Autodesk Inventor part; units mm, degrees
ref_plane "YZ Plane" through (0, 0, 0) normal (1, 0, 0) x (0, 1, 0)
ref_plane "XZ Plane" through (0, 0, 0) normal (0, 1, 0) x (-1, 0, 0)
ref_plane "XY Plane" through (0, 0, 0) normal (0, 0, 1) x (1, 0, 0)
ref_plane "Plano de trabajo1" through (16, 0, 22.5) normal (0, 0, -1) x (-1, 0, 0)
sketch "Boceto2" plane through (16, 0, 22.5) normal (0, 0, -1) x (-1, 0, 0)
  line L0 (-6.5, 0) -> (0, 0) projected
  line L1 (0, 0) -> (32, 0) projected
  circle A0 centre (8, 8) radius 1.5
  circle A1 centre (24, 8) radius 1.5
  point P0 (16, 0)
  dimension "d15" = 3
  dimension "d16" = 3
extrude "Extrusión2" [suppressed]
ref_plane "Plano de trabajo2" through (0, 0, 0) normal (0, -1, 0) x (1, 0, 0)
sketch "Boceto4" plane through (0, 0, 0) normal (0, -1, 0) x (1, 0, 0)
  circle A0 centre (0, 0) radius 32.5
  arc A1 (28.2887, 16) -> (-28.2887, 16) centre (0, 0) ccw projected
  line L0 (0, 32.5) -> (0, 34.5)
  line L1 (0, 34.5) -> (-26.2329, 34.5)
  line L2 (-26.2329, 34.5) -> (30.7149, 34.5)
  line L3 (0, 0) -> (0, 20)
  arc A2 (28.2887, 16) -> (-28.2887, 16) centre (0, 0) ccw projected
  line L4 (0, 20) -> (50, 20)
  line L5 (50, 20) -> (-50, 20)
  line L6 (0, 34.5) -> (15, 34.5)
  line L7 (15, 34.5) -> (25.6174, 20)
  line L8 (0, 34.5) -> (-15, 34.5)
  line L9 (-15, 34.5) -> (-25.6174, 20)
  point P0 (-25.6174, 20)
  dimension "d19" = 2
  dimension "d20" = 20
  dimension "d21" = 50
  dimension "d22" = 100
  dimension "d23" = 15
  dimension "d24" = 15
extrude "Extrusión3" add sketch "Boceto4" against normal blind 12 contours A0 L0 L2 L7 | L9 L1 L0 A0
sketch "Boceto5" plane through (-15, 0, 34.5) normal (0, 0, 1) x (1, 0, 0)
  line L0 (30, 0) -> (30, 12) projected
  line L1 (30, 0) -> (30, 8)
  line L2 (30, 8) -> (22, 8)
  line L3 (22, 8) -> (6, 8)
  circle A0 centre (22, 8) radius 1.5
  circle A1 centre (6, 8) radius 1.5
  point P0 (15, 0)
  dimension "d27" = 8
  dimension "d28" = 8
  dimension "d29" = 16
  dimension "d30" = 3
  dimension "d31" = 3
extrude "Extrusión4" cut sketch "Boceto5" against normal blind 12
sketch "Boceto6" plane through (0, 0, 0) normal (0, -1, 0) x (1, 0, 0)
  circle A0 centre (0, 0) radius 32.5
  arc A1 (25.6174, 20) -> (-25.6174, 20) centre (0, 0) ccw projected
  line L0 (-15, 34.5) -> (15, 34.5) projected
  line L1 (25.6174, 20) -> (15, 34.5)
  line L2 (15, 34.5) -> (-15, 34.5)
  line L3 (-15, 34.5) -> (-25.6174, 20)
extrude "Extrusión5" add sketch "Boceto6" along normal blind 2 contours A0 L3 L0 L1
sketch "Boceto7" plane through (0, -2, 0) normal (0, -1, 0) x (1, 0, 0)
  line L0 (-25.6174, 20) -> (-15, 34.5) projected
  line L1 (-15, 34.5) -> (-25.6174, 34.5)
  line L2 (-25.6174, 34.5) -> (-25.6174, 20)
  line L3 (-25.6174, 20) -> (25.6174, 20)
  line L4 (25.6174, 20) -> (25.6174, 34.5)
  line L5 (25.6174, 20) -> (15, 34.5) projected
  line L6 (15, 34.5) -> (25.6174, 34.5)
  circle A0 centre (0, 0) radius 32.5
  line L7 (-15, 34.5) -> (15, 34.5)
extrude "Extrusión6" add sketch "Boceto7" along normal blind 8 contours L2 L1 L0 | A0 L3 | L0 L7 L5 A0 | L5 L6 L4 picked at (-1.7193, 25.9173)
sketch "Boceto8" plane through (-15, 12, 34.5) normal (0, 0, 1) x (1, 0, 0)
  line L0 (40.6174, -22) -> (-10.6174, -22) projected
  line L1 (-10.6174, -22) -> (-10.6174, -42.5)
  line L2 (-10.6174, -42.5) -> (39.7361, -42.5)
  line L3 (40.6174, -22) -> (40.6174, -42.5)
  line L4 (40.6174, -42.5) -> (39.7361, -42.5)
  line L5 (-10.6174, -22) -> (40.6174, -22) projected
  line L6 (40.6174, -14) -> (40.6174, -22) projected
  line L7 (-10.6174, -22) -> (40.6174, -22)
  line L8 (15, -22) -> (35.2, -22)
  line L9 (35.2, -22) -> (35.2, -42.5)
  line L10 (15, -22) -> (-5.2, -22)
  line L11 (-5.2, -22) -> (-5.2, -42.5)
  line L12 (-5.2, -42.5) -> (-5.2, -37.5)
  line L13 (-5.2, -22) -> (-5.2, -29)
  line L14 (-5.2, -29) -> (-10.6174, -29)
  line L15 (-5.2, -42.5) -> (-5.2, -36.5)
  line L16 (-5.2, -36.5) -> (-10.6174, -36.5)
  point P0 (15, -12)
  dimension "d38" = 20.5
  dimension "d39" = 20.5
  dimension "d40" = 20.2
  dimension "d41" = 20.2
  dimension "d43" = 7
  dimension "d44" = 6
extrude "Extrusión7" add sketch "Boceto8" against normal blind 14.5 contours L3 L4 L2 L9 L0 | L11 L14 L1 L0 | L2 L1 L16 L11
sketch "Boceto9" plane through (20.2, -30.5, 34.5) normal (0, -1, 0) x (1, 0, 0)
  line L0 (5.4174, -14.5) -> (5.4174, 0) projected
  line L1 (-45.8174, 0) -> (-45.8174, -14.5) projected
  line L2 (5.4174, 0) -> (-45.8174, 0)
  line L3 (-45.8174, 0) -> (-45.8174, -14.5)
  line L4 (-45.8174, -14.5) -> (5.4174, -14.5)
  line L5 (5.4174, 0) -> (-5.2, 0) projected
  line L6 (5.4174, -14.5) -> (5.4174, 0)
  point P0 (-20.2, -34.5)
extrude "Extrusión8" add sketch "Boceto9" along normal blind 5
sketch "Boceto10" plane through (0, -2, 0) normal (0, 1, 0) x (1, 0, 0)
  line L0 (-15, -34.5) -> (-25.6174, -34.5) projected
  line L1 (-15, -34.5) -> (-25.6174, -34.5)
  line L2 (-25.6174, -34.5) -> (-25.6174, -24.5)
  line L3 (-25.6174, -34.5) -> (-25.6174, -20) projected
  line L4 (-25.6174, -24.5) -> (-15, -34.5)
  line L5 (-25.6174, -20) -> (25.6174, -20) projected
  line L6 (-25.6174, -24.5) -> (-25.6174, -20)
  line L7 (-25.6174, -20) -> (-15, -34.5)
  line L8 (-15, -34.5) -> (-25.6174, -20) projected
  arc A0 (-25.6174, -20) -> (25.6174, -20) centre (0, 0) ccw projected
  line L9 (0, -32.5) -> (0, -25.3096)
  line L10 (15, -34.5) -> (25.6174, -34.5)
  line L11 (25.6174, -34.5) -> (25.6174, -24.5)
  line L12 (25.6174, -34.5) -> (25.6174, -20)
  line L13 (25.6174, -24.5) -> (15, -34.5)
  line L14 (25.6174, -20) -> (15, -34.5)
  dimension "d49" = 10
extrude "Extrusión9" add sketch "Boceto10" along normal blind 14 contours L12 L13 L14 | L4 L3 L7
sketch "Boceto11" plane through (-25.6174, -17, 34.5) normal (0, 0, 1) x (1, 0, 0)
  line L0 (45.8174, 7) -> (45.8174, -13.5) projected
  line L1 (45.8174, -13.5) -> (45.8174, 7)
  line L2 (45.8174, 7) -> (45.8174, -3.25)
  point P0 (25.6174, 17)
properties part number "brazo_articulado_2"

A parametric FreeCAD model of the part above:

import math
import FreeCAD as App
import Part
import Sketcher


def add_polygon(sketch, points):
    """Adds a closed chain of lines whose ends are joined by coincident constraints."""
    first, n = sketch.GeometryCount, len(points)
    for a, b in zip(points, points[1:] + points[:1]):
        sketch.addGeometry(Part.LineSegment(App.Vector(*a, 0), App.Vector(*b, 0)), False)
    for i in range(n):
        sketch.addConstraint(Sketcher.Constraint("Coincident", first + i, 2, first + (i + 1) % n, 1))

doc = App.newDocument("Part")
body = doc.addObject("PartDesign::Body", "Body")
body.AllowCompound = True

# Sketch on XZ plane
sketch1 = doc.addObject("Sketcher::SketchObject", "Sketch")
body.addObject(sketch1)
sketch1.AttachmentSupport = (doc.XZ_Plane, [""])
sketch1.MapMode = "FlatFace"
sketch1.addGeometry([
    Part.LineSegment(App.Vector(26, 20, 0), App.Vector(15, 34, 0)),
    Part.LineSegment(App.Vector(15, 34, 0), App.Vector(-15, 34, 0)),
    Part.LineSegment(App.Vector(-15, 34, 0), App.Vector(-26, 20, 0)),
    Part.ArcOfCircle(Part.Circle(App.Vector(0, 0, 0), App.Vector(0, 0, 1), 32), math.radians(38), math.radians(142)),
], False)
sketch1.addConstraint([
    Sketcher.Constraint("Coincident", 0, 2, 1, 1),
    Sketcher.Constraint("Coincident", 1, 2, 2, 1),
    Sketcher.Constraint("Coincident", 2, 2, 3, 2),
    Sketcher.Constraint("Coincident", 3, 1, 0, 1),
    Sketcher.Constraint("Horizontal", 1),
    Sketcher.Constraint("Coincident", 3, 3, -1, 1),
    Sketcher.Constraint("Horizontal", 2, 2, 3, 1),
    Sketcher.Constraint("Equal", 0, 2),
    Sketcher.Constraint("DistanceX", -1, 1, 0, 2, 15.0),
    Sketcher.Constraint("DistanceY", -1, 1, 2, 2, 20.0),
    Sketcher.Constraint("Radius", 3, 32.5),
    Sketcher.Constraint("DistanceY", -1, 1, 0, 2, 34.5),
])
pad1 = doc.addObject("PartDesign::Pad", "Pad")
body.addObject(pad1)
pad1.Profile = sketch1
pad1.Length = 12
pad1.Reversed = True

# Sketch on XY plane
sketch2 = doc.addObject("Sketcher::SketchObject", "Sketch001")
body.addObject(sketch2)
sketch2.AttachmentSupport = (doc.XY_Plane, [""])
sketch2.MapMode = "FlatFace"
sketch2.AttachmentOffset = App.Placement(App.Vector(0, 0, 34.5), App.Rotation())
sketch2.addGeometry([
    Part.Circle(App.Vector(7, 8, 0), App.Vector(0, 0, 1), 1.5),
    Part.Circle(App.Vector(-9, 8, 0), App.Vector(0, 0, 1), 1.5),
], False)
sketch2.addConstraint([
    Sketcher.Constraint("Equal", 0, 1),
    Sketcher.Constraint("Horizontal", 0, 3, 1, 3),
    Sketcher.Constraint("Diameter", 0, 3.0),
    Sketcher.Constraint("DistanceY", -1, 1, 0, 3, 8.0),
    Sketcher.Constraint("DistanceX", 1, 3, 0, 3, 16.0),
    Sketcher.Constraint("DistanceX", -1, 1, 0, 3, 7.0),
])
pocket1 = doc.addObject("PartDesign::Pocket", "Pocket")
body.addObject(pocket1)
pocket1.Profile = sketch2
pocket1.Length = 12

# Sketch on XZ plane
sketch3 = doc.addObject("Sketcher::SketchObject", "Sketch002")
body.addObject(sketch3)
sketch3.AttachmentSupport = (doc.XZ_Plane, [""])
sketch3.MapMode = "FlatFace"
sketch3.addGeometry([
    Part.ArcOfCircle(Part.Circle(App.Vector(0, 0, 0), App.Vector(0, 0, 1), 32), math.radians(38), math.radians(142)),
    Part.LineSegment(App.Vector(26, 20, 0), App.Vector(15, 34, 0)),
    Part.LineSegment(App.Vector(15, 34, 0), App.Vector(-15, 34, 0)),
    Part.LineSegment(App.Vector(-15, 34, 0), App.Vector(-26, 20, 0)),
], False)
sketch3.addConstraint([
    Sketcher.Constraint("Coincident", 0, 1, 1, 1),
    Sketcher.Constraint("Coincident", 1, 2, 2, 1),
    Sketcher.Constraint("Coincident", 2, 2, 3, 1),
    Sketcher.Constraint("Coincident", 3, 2, 0, 2),
    Sketcher.Constraint("Horizontal", 2),
    Sketcher.Constraint("Coincident", 0, 3, -1, 1),
    Sketcher.Constraint("Horizontal", 0, 1, 3, 2),
    Sketcher.Constraint("Equal", 1, 3),
    Sketcher.Constraint("Radius", 0, 32.5),
    Sketcher.Constraint("DistanceX", 2, 2, 2, 1, 30.0),
    Sketcher.Constraint("DistanceY", -1, 1, 0, 1, 20.0),
    Sketcher.Constraint("DistanceY", -1, 1, 1, 2, 34.5),
])
pad2 = doc.addObject("PartDesign::Pad", "Pad001")
body.addObject(pad2)
pad2.Profile = sketch3
pad2.Length = 2

# Sketch on XZ plane
sketch4 = doc.addObject("Sketcher::SketchObject", "Sketch003")
body.addObject(sketch4)
sketch4.AttachmentSupport = (doc.XZ_Plane, [""])
sketch4.MapMode = "FlatFace"
sketch4.AttachmentOffset = App.Placement(App.Vector(0, 0, 2), App.Rotation())
add_polygon(sketch4, [(-26, 34), (-26, 20), (26, 20), (26, 34)])  # lines 0-3
sketch4.addConstraint([
    Sketcher.Constraint("Vertical", 0),
    Sketcher.Constraint("Horizontal", 1),
    Sketcher.Constraint("Vertical", 2),
    Sketcher.Constraint("Horizontal", 3),
    Sketcher.Constraint("DistanceY", 0, 2, 0, 1, 14.5),
    Sketcher.Constraint("DistanceY", -1, 1, 0, 2, 20.0),
    Sketcher.Constraint("DistanceX", 1, 1, 1, 2, 51.2348),
    Sketcher.Constraint("DistanceX", 0, 2, -1, 1, 25.6174),
])
pad3 = doc.addObject("PartDesign::Pad", "Pad002")
body.addObject(pad3)
pad3.Profile = sketch4
pad3.Length = 8

# Sketch on XY plane
sketch5 = doc.addObject("Sketcher::SketchObject", "Sketch004")
body.addObject(sketch5)
sketch5.AttachmentSupport = (doc.XY_Plane, [""])
sketch5.MapMode = "FlatFace"
sketch5.AttachmentOffset = App.Placement(App.Vector(0, 0, 34.5), App.Rotation())
add_polygon(sketch5, [(26, -30), (26, -10), (20, -10), (20, -30)])  # lines 0-3
add_polygon(sketch5, [(-20, -17), (-20, -10), (-26, -10), (-26, -17)])  # lines 4-7
add_polygon(sketch5, [(-26, -30), (-20, -30), (-20, -24), (-26, -24)])  # lines 8-11
sketch5.addConstraint([
    Sketcher.Constraint("Vertical", 0),
    Sketcher.Constraint("Horizontal", 1),
    Sketcher.Constraint("Vertical", 2),
    Sketcher.Constraint("Horizontal", 3),
    Sketcher.Constraint("Vertical", 4),
    Sketcher.Constraint("Horizontal", 5),
    Sketcher.Constraint("Vertical", 6),
    Sketcher.Constraint("Horizontal", 7),
    Sketcher.Constraint("Horizontal", 8),
    Sketcher.Constraint("Vertical", 9),
    Sketcher.Constraint("Horizontal", 10),
    Sketcher.Constraint("Vertical", 11),
    Sketcher.Constraint("Symmetric", 1, 2, 4, 2, -2),
    Sketcher.Constraint("Symmetric", 2, 2, 8, 2, -2),
    Sketcher.Constraint("Vertical", 6, 2, 10, 2),
    Sketcher.Constraint("Equal", 3, 5),
    Sketcher.Constraint("DistanceY", 4, 1, 4, 2, 7.0),
    Sketcher.Constraint("DistanceY", 9, 1, 9, 2, 6.0),
    Sketcher.Constraint("DistanceY", 0, 1, 0, 2, 20.5),
    Sketcher.Constraint("DistanceX", -1, 1, 1, 2, 20.2),
    Sketcher.Constraint("DistanceY", 0, 2, -1, 1, 10.0),
    Sketcher.Constraint("DistanceX", 1, 2, 1, 1, 5.4174),
])
pad4 = doc.addObject("PartDesign::Pad", "Pad003")
body.addObject(pad4)
pad4.Profile = sketch5
pad4.Length = 14.5
pad4.Reversed = True

# Sketch on XZ plane
sketch6 = doc.addObject("Sketcher::SketchObject", "Sketch005")
body.addObject(sketch6)
sketch6.AttachmentSupport = (doc.XZ_Plane, [""])
sketch6.MapMode = "FlatFace"
sketch6.AttachmentOffset = App.Placement(App.Vector(0, 0, 30.5), App.Rotation())
add_polygon(sketch6, [(-26, 20), (26, 20), (26, 34), (-26, 34)])  # lines 0-3
sketch6.addConstraint([
    Sketcher.Constraint("Horizontal", 0),
    Sketcher.Constraint("Vertical", 1),
    Sketcher.Constraint("Horizontal", 2),
    Sketcher.Constraint("Vertical", 3),
    Sketcher.Constraint("DistanceY", 1, 1, 1, 2, 14.5),
    Sketcher.Constraint("DistanceY", -1, 1, 0, 2, 20.0),
    Sketcher.Constraint("DistanceX", 0, 1, 0, 2, 51.2348),
    Sketcher.Constraint("DistanceX", -1, 1, 0, 2, 25.6174),
])
pad5 = doc.addObject("PartDesign::Pad", "Pad004")
body.addObject(pad5)
pad5.Profile = sketch6
pad5.Length = 5

# Sketch on XZ plane
sketch7 = doc.addObject("Sketcher::SketchObject", "Sketch006")
body.addObject(sketch7)
sketch7.AttachmentSupport = (doc.XZ_Plane, [""])
sketch7.MapMode = "FlatFace"
sketch7.AttachmentOffset = App.Placement(App.Vector(0, 0, 2), App.Rotation())
add_polygon(sketch7, [(25.6, 24.5), (25.6, 20), (15, 34.5)])  # lines 0-2
add_polygon(sketch7, [(-25.6, 24.5), (-15, 34.5), (-25.6, 20)])  # lines 3-5
sketch7.addConstraint([
    Sketcher.Constraint("Vertical", 0),
    Sketcher.Constraint("Vertical", 5),
    Sketcher.Constraint("Symmetric", 1, 2, 3, 2, -2),
    Sketcher.Constraint("Symmetric", 0, 2, 4, 2, -2),
    Sketcher.Constraint("Horizontal", 2, 2, 5, 2),
    Sketcher.Constraint("DistanceY", 2, 2, 1, 2, 10.0),
    Sketcher.Constraint("DistanceY", 0, 2, 0, 1, 4.5),
    Sketcher.Constraint("DistanceY", -1, 1, 0, 2, 20.0),
    Sketcher.Constraint("DistanceX", -1, 1, 1, 2, 15.0),
    Sketcher.Constraint("Distance", 1, 17.9716),
])
pad6 = doc.addObject("PartDesign::Pad", "Pad005")
body.addObject(pad6)
pad6.Profile = sketch7
pad6.Length = 14
pad6.Reversed = True

doc.recompute()
